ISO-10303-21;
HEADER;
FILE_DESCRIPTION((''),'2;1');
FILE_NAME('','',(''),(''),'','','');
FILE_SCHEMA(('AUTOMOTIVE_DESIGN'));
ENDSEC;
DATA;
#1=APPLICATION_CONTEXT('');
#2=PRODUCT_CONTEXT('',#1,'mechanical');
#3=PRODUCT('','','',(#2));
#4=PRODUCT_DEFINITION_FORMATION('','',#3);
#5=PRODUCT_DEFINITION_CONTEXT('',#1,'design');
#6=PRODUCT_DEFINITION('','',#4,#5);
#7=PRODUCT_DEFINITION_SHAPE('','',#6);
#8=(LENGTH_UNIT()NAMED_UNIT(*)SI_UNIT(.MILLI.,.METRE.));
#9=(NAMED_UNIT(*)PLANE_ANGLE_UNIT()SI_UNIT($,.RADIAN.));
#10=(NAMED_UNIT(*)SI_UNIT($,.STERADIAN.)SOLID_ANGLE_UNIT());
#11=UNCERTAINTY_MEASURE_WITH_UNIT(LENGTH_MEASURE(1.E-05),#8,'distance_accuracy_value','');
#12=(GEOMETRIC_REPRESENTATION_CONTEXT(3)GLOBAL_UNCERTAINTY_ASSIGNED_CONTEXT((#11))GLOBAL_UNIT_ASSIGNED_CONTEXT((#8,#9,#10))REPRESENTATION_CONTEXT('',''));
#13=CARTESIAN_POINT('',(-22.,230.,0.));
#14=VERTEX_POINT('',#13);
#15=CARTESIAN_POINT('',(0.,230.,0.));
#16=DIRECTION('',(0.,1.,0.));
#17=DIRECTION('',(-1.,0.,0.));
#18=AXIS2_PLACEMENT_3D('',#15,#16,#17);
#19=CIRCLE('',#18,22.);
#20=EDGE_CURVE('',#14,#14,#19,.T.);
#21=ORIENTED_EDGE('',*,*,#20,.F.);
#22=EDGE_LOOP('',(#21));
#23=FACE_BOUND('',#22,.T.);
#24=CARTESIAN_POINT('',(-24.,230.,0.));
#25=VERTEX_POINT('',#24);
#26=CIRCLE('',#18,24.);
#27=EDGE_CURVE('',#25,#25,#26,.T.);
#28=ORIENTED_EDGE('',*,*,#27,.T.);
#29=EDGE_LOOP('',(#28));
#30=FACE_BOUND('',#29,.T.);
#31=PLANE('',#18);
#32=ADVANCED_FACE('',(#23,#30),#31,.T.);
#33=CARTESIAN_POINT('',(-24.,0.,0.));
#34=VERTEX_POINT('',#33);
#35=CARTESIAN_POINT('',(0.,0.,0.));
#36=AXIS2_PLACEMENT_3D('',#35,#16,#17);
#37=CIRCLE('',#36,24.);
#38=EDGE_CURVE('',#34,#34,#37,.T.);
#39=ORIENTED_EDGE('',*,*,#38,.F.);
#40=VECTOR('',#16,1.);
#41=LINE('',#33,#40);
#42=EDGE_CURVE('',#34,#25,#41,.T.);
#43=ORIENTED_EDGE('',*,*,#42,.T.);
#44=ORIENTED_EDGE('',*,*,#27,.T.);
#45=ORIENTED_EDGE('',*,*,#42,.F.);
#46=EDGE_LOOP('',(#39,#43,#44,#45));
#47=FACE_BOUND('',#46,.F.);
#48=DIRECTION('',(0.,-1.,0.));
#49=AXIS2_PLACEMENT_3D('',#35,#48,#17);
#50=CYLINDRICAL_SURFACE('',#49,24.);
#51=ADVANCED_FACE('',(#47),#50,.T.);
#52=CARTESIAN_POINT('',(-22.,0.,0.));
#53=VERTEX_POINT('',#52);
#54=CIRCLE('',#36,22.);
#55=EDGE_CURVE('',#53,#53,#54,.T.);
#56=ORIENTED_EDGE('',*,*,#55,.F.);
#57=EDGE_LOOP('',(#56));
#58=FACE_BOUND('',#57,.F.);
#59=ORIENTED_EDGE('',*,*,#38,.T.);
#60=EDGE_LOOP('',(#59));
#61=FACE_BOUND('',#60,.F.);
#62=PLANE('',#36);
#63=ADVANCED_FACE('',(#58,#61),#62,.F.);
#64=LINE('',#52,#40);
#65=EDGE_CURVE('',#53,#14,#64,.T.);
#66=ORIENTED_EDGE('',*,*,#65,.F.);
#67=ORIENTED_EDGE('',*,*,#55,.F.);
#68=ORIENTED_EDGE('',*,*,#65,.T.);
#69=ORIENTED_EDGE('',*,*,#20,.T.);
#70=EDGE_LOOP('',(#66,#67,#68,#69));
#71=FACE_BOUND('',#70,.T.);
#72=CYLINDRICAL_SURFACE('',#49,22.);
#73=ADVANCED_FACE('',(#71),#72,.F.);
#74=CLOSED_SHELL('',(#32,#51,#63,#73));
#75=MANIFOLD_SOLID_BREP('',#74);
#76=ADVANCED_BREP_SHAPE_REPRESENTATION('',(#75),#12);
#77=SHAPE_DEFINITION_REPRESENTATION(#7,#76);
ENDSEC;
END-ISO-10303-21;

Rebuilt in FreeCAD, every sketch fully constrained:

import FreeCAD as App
import Part
import Sketcher

V = App.Vector
Q = App.Units.Quantity

doc = App.newDocument("Part")
body = doc.addObject("PartDesign::Body", "Body")

# Sketch on XZ plane
sketch1 = body.newObject("Sketcher::SketchObject", "Sketch")
sketch1.AttachmentSupport = (doc.getObject("XZ_Plane"), [""])
sketch1.MapMode = "FlatFace"
sketch1.addGeometry([
    Part.Circle(V(0, 0, 0), V(0, 0, 1), 24),
    Part.Circle(V(0, 0, 0), V(0, 0, 1), 22),
], False)
sketch1.addConstraint([
    Sketcher.Constraint("Coincident", 0, 3, -1, 1),
    Sketcher.Constraint("Coincident", 1, 3, -1, 1),
    Sketcher.Constraint("Diameter", 0, Q("48 mm")),
    Sketcher.Constraint("Diameter", 1, Q("44 mm")),
])
pad1 = body.newObject("PartDesign::Pad", "Pad")
pad1.Profile = sketch1
pad1.Length = 230
pad1.Reversed = True

doc.recompute()
